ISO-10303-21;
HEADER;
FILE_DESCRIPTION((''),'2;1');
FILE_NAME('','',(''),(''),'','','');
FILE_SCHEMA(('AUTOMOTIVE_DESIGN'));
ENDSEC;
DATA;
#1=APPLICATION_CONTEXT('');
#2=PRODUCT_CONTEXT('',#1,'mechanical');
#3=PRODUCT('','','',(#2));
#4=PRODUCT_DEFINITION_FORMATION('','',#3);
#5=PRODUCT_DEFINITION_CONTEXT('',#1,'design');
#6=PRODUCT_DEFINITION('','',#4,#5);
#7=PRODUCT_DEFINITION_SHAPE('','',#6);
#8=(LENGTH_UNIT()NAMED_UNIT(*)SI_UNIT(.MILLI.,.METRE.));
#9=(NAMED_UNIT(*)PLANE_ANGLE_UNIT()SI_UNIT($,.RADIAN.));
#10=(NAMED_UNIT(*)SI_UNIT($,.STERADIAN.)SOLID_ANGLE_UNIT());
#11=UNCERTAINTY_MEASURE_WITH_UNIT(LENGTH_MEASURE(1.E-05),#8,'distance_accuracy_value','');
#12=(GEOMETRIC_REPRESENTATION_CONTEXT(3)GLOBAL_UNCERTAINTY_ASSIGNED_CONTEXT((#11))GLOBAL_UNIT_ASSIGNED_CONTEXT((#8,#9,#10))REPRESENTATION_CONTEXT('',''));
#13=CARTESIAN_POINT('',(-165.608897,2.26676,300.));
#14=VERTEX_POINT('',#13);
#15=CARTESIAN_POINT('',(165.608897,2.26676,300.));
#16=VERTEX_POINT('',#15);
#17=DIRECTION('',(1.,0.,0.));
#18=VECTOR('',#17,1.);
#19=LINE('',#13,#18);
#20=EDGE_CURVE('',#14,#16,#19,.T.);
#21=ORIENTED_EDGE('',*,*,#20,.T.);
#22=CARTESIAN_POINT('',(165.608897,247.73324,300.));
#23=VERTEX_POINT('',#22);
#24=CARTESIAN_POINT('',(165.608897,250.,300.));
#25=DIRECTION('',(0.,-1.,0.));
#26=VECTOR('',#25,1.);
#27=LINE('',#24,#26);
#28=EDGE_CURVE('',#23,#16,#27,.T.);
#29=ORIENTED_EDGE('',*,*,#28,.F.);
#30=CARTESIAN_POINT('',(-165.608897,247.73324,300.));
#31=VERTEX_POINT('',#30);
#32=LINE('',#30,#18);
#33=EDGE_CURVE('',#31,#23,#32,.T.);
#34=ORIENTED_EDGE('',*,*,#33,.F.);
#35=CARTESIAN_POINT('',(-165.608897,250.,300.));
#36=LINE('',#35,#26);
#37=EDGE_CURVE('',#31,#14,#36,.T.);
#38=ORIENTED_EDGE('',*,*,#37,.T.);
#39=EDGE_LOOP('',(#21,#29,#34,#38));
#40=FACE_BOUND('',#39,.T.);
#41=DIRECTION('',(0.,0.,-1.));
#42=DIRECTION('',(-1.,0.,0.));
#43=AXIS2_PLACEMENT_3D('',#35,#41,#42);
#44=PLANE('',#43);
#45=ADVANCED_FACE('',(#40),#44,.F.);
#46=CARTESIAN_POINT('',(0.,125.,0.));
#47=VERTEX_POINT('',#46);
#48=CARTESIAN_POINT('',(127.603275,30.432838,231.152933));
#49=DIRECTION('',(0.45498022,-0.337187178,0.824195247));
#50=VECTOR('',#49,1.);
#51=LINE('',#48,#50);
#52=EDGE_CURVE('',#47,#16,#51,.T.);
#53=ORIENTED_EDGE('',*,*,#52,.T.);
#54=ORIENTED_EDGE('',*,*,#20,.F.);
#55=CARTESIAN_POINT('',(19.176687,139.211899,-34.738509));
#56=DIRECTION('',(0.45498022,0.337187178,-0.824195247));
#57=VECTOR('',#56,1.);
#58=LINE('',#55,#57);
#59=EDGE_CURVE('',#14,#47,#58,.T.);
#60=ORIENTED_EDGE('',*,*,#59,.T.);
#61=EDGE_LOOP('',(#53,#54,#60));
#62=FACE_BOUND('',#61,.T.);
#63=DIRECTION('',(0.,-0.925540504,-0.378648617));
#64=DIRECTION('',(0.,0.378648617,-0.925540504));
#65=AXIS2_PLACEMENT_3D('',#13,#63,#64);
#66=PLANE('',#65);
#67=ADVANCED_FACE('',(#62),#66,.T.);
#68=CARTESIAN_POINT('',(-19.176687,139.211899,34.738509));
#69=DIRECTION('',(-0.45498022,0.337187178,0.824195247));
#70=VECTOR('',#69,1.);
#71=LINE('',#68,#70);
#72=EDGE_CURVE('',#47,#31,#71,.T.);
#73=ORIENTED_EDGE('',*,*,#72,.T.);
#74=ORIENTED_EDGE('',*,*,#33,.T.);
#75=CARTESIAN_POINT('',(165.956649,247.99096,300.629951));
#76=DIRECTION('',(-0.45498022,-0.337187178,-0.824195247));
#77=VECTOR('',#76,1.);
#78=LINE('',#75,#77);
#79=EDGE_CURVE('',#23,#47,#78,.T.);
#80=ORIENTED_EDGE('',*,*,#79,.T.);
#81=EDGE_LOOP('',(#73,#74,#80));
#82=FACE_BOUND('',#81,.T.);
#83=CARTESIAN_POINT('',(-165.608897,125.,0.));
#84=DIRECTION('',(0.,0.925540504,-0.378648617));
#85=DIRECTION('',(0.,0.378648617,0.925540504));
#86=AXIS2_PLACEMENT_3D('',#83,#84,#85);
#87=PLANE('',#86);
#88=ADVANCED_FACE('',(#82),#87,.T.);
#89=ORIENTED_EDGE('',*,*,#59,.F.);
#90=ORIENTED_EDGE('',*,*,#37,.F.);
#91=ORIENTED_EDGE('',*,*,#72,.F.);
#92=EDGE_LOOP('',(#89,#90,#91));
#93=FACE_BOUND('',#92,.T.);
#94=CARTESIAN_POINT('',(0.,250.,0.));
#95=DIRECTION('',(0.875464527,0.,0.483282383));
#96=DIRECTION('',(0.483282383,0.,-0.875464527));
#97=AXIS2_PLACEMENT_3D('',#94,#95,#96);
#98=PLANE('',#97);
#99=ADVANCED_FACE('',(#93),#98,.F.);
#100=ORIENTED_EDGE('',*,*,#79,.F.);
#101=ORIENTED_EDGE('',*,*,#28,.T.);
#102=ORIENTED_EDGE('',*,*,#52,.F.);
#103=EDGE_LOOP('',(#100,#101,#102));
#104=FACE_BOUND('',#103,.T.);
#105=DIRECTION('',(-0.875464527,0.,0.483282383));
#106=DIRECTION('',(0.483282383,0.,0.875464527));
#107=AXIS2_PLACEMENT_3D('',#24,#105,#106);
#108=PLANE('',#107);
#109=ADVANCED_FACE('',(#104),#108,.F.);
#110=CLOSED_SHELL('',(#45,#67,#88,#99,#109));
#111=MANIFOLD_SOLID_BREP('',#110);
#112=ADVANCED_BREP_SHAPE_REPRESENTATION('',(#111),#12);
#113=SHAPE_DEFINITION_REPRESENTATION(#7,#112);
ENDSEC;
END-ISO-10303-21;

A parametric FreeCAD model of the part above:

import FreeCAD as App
import Part
import Sketcher
from FreeCAD import Vector
Q = App.Units.Quantity

doc = App.newDocument("Part")
body = doc.addObject("PartDesign::Body", "Body")

sketch1 = body.newObject("Sketcher::SketchObject", "Sketch")
sketch1.AttachmentSupport = (doc.getObject("XZ_Plane"), [""])
sketch1.MapMode = "FlatFace"
sketch1.addGeometry([
    Part.LineSegment(Vector(0, 0, 0), Vector(-166, 300, 0)),
    Part.LineSegment(Vector(-166, 300, 0), Vector(166, 300, 0)),
    Part.LineSegment(Vector(166, 300, 0), Vector(0, 0, 0)),
], False)
sketch1.addConstraint([
    Sketcher.Constraint("Coincident", 0, 2, 1, 1),
    Sketcher.Constraint("Coincident", 1, 2, 2, 1),
    Sketcher.Constraint("Coincident", 2, 2, 0, 1),
    Sketcher.Constraint("Horizontal", 1),
    Sketcher.Constraint("Coincident", 2, 2, -1, 1),
    Sketcher.Constraint("Equal", 0, 2),
    Sketcher.Constraint("DistanceY", -1, 1, 0, 2, Q("300 mm")),
    Sketcher.Constraint("Angle", 0, Q("118.9 deg")),
])
pad1 = body.newObject("PartDesign::Pad", "Pad")
pad1.Profile = sketch1
pad1.Length = 250
pad1.Reversed = True

sketch2 = body.newObject("Sketcher::SketchObject", "Sketch001")
sketch2.AttachmentSupport = (doc.getObject("YZ_Plane"), [""])
sketch2.MapMode = "FlatFace"
sketch2.addGeometry([
    Part.LineSegment(Vector(302, 352, 0), Vector(-52, 352, 0)),
    Part.LineSegment(Vector(-52, 352, 0), Vector(-52, -52, 0)),
    Part.LineSegment(Vector(-52, -52, 0), Vector(302, -52, 0)),
    Part.LineSegment(Vector(302, -52, 0), Vector(302, 352, 0)),
    Part.LineSegment(Vector(248, 300, 0), Vector(125, 0, 0)),
    Part.LineSegment(Vector(125, 0, 0), Vector(2, 300, 0)),
    Part.LineSegment(Vector(2, 300, 0), Vector(248, 300, 0)),
], False)
sketch2.addConstraint([
    Sketcher.Constraint("Coincident", 0, 2, 1, 1),
    Sketcher.Constraint("Coincident", 1, 2, 2, 1),
    Sketcher.Constraint("Coincident", 2, 2, 3, 1),
    Sketcher.Constraint("Coincident", 3, 2, 0, 1),
    Sketcher.Constraint("Coincident", 4, 2, 5, 1),
    Sketcher.Constraint("Coincident", 5, 2, 6, 1),
    Sketcher.Constraint("Coincident", 6, 2, 4, 1),
    Sketcher.Constraint("Horizontal", 0),
    Sketcher.Constraint("Vertical", 1),
    Sketcher.Constraint("Horizontal", 2),
    Sketcher.Constraint("Vertical", 3),
    Sketcher.Constraint("Horizontal", 6),
    Sketcher.Constraint("PointOnObject", 4, 2, -1),
    Sketcher.Constraint("Equal", 4, 5),
    Sketcher.Constraint("DistanceX", -1, 1, 4, 2, Q("125 mm")),
    Sketcher.Constraint("DistanceY", -1, 1, 5, 2, Q("300 mm")),
    Sketcher.Constraint("Angle", 4, Q("-112.25 deg")),
    Sketcher.Constraint("DistanceX", 0, 2, 0, 1, Q("354.412 mm")),
    Sketcher.Constraint("DistanceY", 1, 2, 1, 1, Q("404.412 mm")),
    Sketcher.Constraint("DistanceX", 0, 2, -1, 1, Q("52.206 mm")),
    Sketcher.Constraint("DistanceY", -1, 1, 0, 2, Q("352.206 mm")),
])
pocket1 = body.newObject("PartDesign::Pocket", "Pocket")
pocket1.Profile = sketch2
pocket1.Type = "ThroughAll"
pocket1.Midplane = True

doc.recompute()
